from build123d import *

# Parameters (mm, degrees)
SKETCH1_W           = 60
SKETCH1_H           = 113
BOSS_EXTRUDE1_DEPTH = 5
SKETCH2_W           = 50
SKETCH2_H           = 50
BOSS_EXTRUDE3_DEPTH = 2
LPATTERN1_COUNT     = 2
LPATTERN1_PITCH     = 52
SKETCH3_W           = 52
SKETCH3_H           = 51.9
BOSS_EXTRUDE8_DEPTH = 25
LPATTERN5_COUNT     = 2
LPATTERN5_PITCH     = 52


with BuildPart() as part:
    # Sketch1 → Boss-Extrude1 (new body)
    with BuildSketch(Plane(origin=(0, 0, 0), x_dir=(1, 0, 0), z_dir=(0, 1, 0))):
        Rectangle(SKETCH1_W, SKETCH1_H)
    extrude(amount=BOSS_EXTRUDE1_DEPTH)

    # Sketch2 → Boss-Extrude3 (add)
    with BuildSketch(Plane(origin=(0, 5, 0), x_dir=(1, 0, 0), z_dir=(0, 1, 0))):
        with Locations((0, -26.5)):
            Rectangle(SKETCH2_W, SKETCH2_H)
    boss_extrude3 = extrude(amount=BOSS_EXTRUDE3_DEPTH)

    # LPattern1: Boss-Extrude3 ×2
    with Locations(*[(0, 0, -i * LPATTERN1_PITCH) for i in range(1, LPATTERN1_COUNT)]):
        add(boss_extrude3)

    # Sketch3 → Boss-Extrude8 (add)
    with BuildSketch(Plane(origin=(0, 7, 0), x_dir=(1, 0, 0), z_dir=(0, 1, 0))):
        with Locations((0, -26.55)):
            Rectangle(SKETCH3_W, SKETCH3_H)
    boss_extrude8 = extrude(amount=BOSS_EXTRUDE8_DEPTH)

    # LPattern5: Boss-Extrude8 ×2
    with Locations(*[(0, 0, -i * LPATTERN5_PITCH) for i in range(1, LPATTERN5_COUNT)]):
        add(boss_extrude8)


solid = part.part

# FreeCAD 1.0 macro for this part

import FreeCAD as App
import Part
import Sketcher
Q = App.Units.Quantity

doc = App.newDocument("Part")
params = doc.addObject("Spreadsheet::Sheet", "Params")
for row, (alias, value) in enumerate([
    ("sketch1_width", "60 mm"),
    ("sketch1_height", "113 mm"),
    ("pad1_length", "5 mm"),
    ("sketch2_width", "50 mm"),
    ("pad2_length", "2 mm"),
    ("linearpattern_pitch", "52 mm"),
    ("sketch3_width", "52 mm"),
    ("sketch3_height", "51.9 mm"),
    ("pad3_length", "25 mm"),
    ("linearpattern2_pitch", "52 mm"),
], start=1):
    params.set(f"A{row}", alias)
    params.set(f"B{row}", "=" + value)
    params.setAlias(f"B{row}", alias)

body = doc.addObject("PartDesign::Body", "Body")

sketch1 = body.newObject("Sketcher::SketchObject", "Sketch")
sketch1.AttachmentSupport = (doc.getObject("XZ_Plane"), [""])
sketch1.MapMode = "FlatFace"
sketch1.addGeometry([
    Part.LineSegment(App.Vector(-30, -56.5, 0), App.Vector(-30, 56.5, 0)),
    Part.LineSegment(App.Vector(-30, 56.5, 0), App.Vector(30, 56.5, 0)),
    Part.LineSegment(App.Vector(30, 56.5, 0), App.Vector(30, -56.5, 0)),
    Part.LineSegment(App.Vector(30, -56.5, 0), App.Vector(-30, -56.5, 0)),
], False)
sketch1.addConstraint([
    Sketcher.Constraint("Coincident", 0, 2, 1, 1),
    Sketcher.Constraint("Coincident", 1, 2, 2, 1),
    Sketcher.Constraint("Coincident", 2, 2, 3, 1),
    Sketcher.Constraint("Coincident", 3, 2, 0, 1),
    Sketcher.Constraint("Vertical", 0),
    Sketcher.Constraint("Horizontal", 1),
    Sketcher.Constraint("Vertical", 2),
    Sketcher.Constraint("Horizontal", 3),
    Sketcher.Constraint("Symmetric", 0, 2, 2, 2, -1, 1),
    Sketcher.Constraint("DistanceX", 1, 1, 1, 2, Q("60 mm")),
    Sketcher.Constraint("DistanceY", 0, 1, 0, 2, Q("113 mm")),
])
sketch1.setExpression("Constraints[9]", "Params.sketch1_width")
sketch1.setExpression("Constraints[10]", "Params.sketch1_height")
pad1 = body.newObject("PartDesign::Pad", "Pad")
pad1.Profile = sketch1
pad1.setExpression("Length", "Params.pad1_length")
pad1.Reversed = True

sketch2 = body.newObject("Sketcher::SketchObject", "Sketch001")
sketch2.AttachmentSupport = (doc.getObject("XZ_Plane"), [""])
sketch2.MapMode = "FlatFace"
sketch2.AttachmentOffset = App.Placement(App.Vector(0, 0, -5), App.Rotation())
sketch2.addGeometry([
    Part.LineSegment(App.Vector(-25, 1.5, 0), App.Vector(-25, 51.5, 0)),
    Part.LineSegment(App.Vector(-25, 51.5, 0), App.Vector(25, 51.5, 0)),
    Part.LineSegment(App.Vector(25, 51.5, 0), App.Vector(25, 1.5, 0)),
    Part.LineSegment(App.Vector(25, 1.5, 0), App.Vector(-25, 1.5, 0)),
], False)
sketch2.addConstraint([
    Sketcher.Constraint("Coincident", 0, 2, 1, 1),
    Sketcher.Constraint("Coincident", 1, 2, 2, 1),
    Sketcher.Constraint("Coincident", 2, 2, 3, 1),
    Sketcher.Constraint("Coincident", 3, 2, 0, 1),
    Sketcher.Constraint("Vertical", 0),
    Sketcher.Constraint("Horizontal", 1),
    Sketcher.Constraint("Vertical", 2),
    Sketcher.Constraint("Horizontal", 3),
    Sketcher.Constraint("Equal", 3, 0),
    Sketcher.Constraint("DistanceX", 1, 1, 1, 2, Q("50 mm")),
    Sketcher.Constraint("DistanceX", 0, 2, -1, 1, Q("25 mm")),
    Sketcher.Constraint("DistanceY", -1, 1, 0, 2, Q("51.5 mm")),
])
sketch2.setExpression("Constraints[9]", "Params.sketch2_width")
pad2 = body.newObject("PartDesign::Pad", "Pad001")
pad2.Profile = sketch2
pad2.setExpression("Length", "Params.pad2_length")
pad2.Reversed = True
doc.recompute()

linearpattern = body.newObject("PartDesign::LinearPattern", "LinearPattern")
linearpattern.Originals = [pad2]
linearpattern.Direction = (doc.getObject("Z_Axis"), [""])
linearpattern.Mode = "offset"
linearpattern.setExpression("Offset", "Params.linearpattern_pitch")
linearpattern.Occurrences = 2
linearpattern.Reversed = True
body.Tip = linearpattern

sketch3 = body.newObject("Sketcher::SketchObject", "Sketch002")
sketch3.AttachmentSupport = (doc.getObject("XZ_Plane"), [""])
sketch3.MapMode = "FlatFace"
sketch3.AttachmentOffset = App.Placement(App.Vector(0, 0, -7), App.Rotation())
sketch3.addGeometry([
    Part.LineSegment(App.Vector(-26, 0.6, 0), App.Vector(-26, 52.5, 0)),
    Part.LineSegment(App.Vector(-26, 52.5, 0), App.Vector(26, 52.5, 0)),
    Part.LineSegment(App.Vector(26, 52.5, 0), App.Vector(26, 0.6, 0)),
    Part.LineSegment(App.Vector(26, 0.6, 0), App.Vector(-26, 0.6, 0)),
], False)
sketch3.addConstraint([
    Sketcher.Constraint("Coincident", 0, 2, 1, 1),
    Sketcher.Constraint("Coincident", 1, 2, 2, 1),
    Sketcher.Constraint("Coincident", 2, 2, 3, 1),
    Sketcher.Constraint("Coincident", 3, 2, 0, 1),
    Sketcher.Constraint("Vertical", 0),
    Sketcher.Constraint("Horizontal", 1),
    Sketcher.Constraint("Vertical", 2),
    Sketcher.Constraint("Horizontal", 3),
    Sketcher.Constraint("DistanceX", 1, 1, 1, 2, Q("52 mm")),
    Sketcher.Constraint("DistanceY", 0, 1, 0, 2, Q("51.9 mm")),
    Sketcher.Constraint("DistanceX", 0, 2, -1, 1, Q("26 mm")),
    Sketcher.Constraint("DistanceY", -1, 1, 0, 2, Q("52.5 mm")),
])
sketch3.setExpression("Constraints[8]", "Params.sketch3_width")
sketch3.setExpression("Constraints[9]", "Params.sketch3_height")
pad3 = body.newObject("PartDesign::Pad", "Pad002")
pad3.Profile = sketch3
pad3.setExpression("Length", "Params.pad3_length")
pad3.Reversed = True
doc.recompute()

linearpattern2 = body.newObject("PartDesign::LinearPattern", "LinearPattern001")
linearpattern2.Originals = [pad3]
linearpattern2.Direction = (doc.getObject("Z_Axis"), [""])
linearpattern2.Mode = "offset"
linearpattern2.setExpression("Offset", "Params.linearpattern2_pitch")
linearpattern2.Occurrences = 2
linearpattern2.Reversed = True
body.Tip = linearpattern2

doc.recompute()
